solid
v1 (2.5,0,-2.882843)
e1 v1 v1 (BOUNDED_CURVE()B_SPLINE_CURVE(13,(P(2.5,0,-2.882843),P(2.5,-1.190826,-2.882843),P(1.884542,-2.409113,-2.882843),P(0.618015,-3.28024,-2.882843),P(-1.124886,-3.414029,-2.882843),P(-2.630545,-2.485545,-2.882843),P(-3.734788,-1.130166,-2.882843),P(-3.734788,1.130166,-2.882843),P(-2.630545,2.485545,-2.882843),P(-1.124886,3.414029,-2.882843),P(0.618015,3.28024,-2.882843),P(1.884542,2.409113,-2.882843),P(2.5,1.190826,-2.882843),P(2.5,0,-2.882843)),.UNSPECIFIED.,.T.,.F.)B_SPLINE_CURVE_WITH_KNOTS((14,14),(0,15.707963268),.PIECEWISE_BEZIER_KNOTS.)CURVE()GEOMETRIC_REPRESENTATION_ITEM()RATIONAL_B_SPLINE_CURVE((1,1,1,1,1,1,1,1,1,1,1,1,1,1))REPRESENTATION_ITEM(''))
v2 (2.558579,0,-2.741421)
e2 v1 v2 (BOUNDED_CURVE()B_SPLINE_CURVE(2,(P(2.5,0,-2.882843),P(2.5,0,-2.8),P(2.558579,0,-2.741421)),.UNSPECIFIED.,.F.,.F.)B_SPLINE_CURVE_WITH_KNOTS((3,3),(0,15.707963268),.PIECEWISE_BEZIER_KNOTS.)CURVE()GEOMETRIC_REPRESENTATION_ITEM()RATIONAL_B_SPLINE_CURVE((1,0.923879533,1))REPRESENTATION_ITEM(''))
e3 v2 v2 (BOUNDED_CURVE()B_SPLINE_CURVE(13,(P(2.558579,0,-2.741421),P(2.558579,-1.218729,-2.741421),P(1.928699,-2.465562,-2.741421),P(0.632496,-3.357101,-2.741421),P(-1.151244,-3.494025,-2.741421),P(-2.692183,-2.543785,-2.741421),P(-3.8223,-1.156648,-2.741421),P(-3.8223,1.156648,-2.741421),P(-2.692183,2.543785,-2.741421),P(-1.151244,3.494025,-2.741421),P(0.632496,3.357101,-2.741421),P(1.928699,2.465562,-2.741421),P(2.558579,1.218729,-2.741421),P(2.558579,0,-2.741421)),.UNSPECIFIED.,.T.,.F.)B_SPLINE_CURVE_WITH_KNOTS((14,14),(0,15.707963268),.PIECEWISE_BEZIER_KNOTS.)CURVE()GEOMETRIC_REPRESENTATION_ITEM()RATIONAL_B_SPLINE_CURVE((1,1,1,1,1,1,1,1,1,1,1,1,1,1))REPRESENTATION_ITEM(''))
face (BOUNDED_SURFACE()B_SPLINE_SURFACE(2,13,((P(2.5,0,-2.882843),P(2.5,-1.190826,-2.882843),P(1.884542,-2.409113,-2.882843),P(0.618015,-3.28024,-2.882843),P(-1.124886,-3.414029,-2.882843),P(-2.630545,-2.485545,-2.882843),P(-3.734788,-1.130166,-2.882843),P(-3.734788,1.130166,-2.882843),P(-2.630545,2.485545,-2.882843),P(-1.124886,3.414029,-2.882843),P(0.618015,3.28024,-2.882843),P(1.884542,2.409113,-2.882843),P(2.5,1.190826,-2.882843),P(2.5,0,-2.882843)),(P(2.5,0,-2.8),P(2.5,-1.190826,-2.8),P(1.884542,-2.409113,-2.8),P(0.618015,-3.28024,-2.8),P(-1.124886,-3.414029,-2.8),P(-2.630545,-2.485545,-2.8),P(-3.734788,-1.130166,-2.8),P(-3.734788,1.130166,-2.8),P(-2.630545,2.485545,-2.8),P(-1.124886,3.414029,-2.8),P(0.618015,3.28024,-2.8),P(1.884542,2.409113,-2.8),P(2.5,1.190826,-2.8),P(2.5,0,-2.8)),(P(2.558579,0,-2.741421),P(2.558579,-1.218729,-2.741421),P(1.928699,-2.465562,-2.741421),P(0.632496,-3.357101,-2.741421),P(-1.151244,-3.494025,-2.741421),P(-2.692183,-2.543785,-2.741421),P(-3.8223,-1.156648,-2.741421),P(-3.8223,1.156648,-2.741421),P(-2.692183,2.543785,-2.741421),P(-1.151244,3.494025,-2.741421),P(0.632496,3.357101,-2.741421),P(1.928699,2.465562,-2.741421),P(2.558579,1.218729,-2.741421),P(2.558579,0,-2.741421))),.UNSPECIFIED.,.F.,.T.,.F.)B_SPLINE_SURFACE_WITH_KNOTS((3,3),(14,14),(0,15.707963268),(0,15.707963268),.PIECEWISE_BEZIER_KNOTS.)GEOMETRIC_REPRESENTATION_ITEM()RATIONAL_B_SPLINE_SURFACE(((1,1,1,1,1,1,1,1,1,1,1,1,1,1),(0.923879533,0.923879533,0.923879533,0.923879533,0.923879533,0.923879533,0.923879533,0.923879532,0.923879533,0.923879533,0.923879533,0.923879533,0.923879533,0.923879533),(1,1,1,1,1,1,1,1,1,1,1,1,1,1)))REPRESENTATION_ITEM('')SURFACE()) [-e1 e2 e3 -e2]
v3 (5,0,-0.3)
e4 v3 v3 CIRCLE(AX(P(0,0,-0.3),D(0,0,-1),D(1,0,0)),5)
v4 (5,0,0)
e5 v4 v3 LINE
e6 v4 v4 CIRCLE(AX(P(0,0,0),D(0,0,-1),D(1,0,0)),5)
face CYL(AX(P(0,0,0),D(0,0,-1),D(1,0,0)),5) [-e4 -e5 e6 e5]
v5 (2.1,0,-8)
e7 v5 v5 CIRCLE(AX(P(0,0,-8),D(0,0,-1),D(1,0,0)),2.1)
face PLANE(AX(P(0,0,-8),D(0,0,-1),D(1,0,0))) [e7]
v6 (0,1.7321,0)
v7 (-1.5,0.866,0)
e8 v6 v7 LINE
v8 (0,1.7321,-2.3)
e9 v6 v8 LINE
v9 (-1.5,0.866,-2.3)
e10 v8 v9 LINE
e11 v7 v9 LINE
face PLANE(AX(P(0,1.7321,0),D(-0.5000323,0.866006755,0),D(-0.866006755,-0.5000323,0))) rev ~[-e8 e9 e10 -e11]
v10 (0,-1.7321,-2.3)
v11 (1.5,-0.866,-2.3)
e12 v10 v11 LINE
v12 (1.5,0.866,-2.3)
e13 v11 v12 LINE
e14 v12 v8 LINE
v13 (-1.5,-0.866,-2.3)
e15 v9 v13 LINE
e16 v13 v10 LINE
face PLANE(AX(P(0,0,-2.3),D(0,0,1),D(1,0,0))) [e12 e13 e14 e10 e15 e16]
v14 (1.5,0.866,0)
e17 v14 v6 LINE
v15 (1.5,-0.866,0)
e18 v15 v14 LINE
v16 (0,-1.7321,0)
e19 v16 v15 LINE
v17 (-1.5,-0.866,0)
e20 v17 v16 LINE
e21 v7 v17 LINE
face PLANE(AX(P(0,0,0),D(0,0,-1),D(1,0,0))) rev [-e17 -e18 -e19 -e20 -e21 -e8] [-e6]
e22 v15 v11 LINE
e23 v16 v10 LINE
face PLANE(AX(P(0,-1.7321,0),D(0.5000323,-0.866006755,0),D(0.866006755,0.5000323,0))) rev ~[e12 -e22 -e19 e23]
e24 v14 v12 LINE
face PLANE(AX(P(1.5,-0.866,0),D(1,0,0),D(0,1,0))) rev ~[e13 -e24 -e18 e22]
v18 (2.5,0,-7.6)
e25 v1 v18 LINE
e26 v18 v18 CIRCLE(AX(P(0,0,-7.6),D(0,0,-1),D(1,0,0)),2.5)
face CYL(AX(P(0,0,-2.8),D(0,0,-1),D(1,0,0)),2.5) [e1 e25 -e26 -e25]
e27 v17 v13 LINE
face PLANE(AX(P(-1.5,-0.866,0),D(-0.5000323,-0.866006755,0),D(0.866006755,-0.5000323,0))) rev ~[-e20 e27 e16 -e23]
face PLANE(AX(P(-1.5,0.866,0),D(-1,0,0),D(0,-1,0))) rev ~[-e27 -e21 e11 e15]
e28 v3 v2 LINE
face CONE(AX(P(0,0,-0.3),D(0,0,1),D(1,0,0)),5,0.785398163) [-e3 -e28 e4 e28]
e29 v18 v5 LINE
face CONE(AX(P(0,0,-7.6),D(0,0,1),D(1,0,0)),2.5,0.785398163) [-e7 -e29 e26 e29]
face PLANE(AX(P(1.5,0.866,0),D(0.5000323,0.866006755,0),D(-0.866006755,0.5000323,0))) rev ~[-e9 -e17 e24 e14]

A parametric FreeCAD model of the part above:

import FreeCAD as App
import Part
import Sketcher
Q = App.Units.Quantity


def edges_at(feature, points):
    """Names of the edges that pass closest to the given points."""
    edges = feature.Shape.Edges
    near = lambda p: min(range(len(edges)), key=lambda i: edges[i].distToShape(Part.Vertex(*p))[0])
    return sorted({f"Edge{near(p) + 1}" for p in points})

doc = App.newDocument("Part")
body = doc.addObject("PartDesign::Body", "Body")

# Sketch on XZ plane
sketch1 = body.newObject("Sketcher::SketchObject", "Sketch")
sketch1.AttachmentSupport = (doc.getObject("XZ_Plane"), [""])
sketch1.MapMode = "FlatFace"
sketch1.addGeometry(Part.LineSegment(App.Vector(2.5, -2.8, 0), App.Vector(2.5, -8, 0)), False)
sketch1.addGeometry(Part.LineSegment(App.Vector(2.5, -8, 0), App.Vector(0, -8, 0)), False)
sketch1.addGeometry(Part.LineSegment(App.Vector(0, -8, 0), App.Vector(0, 0, 0)), False)
sketch1.addGeometry(Part.LineSegment(App.Vector(0, 0, 0), App.Vector(5, 0, 0)), False)
sketch1.addGeometry(Part.LineSegment(App.Vector(5, 0, 0), App.Vector(5, -0.3, 0)), False)
sketch1.addGeometry(Part.LineSegment(App.Vector(5, -0.3, 0), App.Vector(2.5, -2.8, 0)), False)
sketch1.addConstraint(Sketcher.Constraint("Coincident", 0, 2, 1, 1))
sketch1.addConstraint(Sketcher.Constraint("Coincident", 1, 2, 2, 1))
sketch1.addConstraint(Sketcher.Constraint("Coincident", 2, 2, 3, 1))
sketch1.addConstraint(Sketcher.Constraint("Coincident", 3, 2, 4, 1))
sketch1.addConstraint(Sketcher.Constraint("Coincident", 4, 2, 5, 1))
sketch1.addConstraint(Sketcher.Constraint("Coincident", 5, 2, 0, 1))
sketch1.addConstraint(Sketcher.Constraint("Vertical", 0))
sketch1.addConstraint(Sketcher.Constraint("Horizontal", 1))
sketch1.addConstraint(Sketcher.Constraint("Vertical", 2))
sketch1.addConstraint(Sketcher.Constraint("Horizontal", 3))
sketch1.addConstraint(Sketcher.Constraint("Vertical", 4))
sketch1.addConstraint(Sketcher.Constraint("Coincident", 2, 2, -1, 1))
sketch1.addConstraint(Sketcher.Constraint("DistanceX", 3, 1, 3, 2, Q("5 mm")))
sketch1.addConstraint(Sketcher.Constraint("DistanceY", 2, 1, 2, 2, Q("8 mm")))
sketch1.addConstraint(Sketcher.Constraint("DistanceX", 1, 2, 1, 1, Q("2.5 mm")))
sketch1.addConstraint(Sketcher.Constraint("DistanceY", 4, 2, 4, 1, Q("0.3 mm")))
sketch1.addConstraint(Sketcher.Constraint("DistanceY", 5, 2, 4, 2, Q("2.5 mm")))
revolution = body.newObject("PartDesign::Revolution", "Revolution")
revolution.Profile = sketch1
revolution.ReferenceAxis = (sketch1, ["V_Axis"])
revolution.Angle = 360

# Sketch on XY plane
sketch2 = body.newObject("Sketcher::SketchObject", "Sketch001")
sketch2.AttachmentSupport = (doc.getObject("XY_Plane"), [""])
sketch2.MapMode = "FlatFace"
sketch2.addGeometry(Part.LineSegment(App.Vector(0, 1.7321, 0), App.Vector(-1.5, 0.866, 0)), False)
sketch2.addGeometry(Part.LineSegment(App.Vector(-1.5, 0.866, 0), App.Vector(-1.5, -0.866, 0)), False)
sketch2.addGeometry(Part.LineSegment(App.Vector(-1.5, -0.866, 0), App.Vector(0, -1.7321, 0)), False)
sketch2.addGeometry(Part.LineSegment(App.Vector(0, -1.7321, 0), App.Vector(1.5, -0.866, 0)), False)
sketch2.addGeometry(Part.LineSegment(App.Vector(1.5, -0.866, 0), App.Vector(1.5, 0.866, 0)), False)
sketch2.addGeometry(Part.LineSegment(App.Vector(1.5, 0.866, 0), App.Vector(0, 1.7321, 0)), False)
sketch2.addConstraint(Sketcher.Constraint("Coincident", 0, 2, 1, 1))
sketch2.addConstraint(Sketcher.Constraint("Coincident", 1, 2, 2, 1))
sketch2.addConstraint(Sketcher.Constraint("Coincident", 2, 2, 3, 1))
sketch2.addConstraint(Sketcher.Constraint("Coincident", 3, 2, 4, 1))
sketch2.addConstraint(Sketcher.Constraint("Coincident", 4, 2, 5, 1))
sketch2.addConstraint(Sketcher.Constraint("Coincident", 5, 2, 0, 1))
sketch2.addConstraint(Sketcher.Constraint("Vertical", 1))
sketch2.addConstraint(Sketcher.Constraint("Vertical", 4))
sketch2.addConstraint(Sketcher.Constraint("Symmetric", 0, 2, 3, 2, -1, 1))
sketch2.addConstraint(Sketcher.Constraint("Symmetric", 2, 2, 5, 2, -1, 1))
sketch2.addConstraint(Sketcher.Constraint("PointOnObject", 2, 2, -2))
sketch2.addConstraint(Sketcher.Constraint("Parallel", 2, 5))
sketch2.addConstraint(Sketcher.Constraint("Horizontal", 1, 2, 3, 2))
sketch2.addConstraint(Sketcher.Constraint("DistanceX", 1, 2, 3, 2, Q("3 mm")))
sketch2.addConstraint(Sketcher.Constraint("DistanceY", 1, 2, 1, 1, Q("1.732 mm")))
sketch2.addConstraint(Sketcher.Constraint("Distance", 0, Q("1.732 mm")))
pocket1 = body.newObject("PartDesign::Pocket", "Pocket")
pocket1.Profile = sketch2
pocket1.Length = 2.3
doc.recompute()

fillet = body.newObject("PartDesign::Fillet", "Fillet")
fillet.Base = (pocket1, edges_at(pocket1, [(-2.5, 0, -2.8)]))
fillet.Radius = 0.2
doc.recompute()

chamfer = body.newObject("PartDesign::Chamfer", "Chamfer")
chamfer.Base = (fillet, edges_at(fillet, [(-2.5, 0, -8)]))
chamfer.Size = 0.4

doc.recompute()
